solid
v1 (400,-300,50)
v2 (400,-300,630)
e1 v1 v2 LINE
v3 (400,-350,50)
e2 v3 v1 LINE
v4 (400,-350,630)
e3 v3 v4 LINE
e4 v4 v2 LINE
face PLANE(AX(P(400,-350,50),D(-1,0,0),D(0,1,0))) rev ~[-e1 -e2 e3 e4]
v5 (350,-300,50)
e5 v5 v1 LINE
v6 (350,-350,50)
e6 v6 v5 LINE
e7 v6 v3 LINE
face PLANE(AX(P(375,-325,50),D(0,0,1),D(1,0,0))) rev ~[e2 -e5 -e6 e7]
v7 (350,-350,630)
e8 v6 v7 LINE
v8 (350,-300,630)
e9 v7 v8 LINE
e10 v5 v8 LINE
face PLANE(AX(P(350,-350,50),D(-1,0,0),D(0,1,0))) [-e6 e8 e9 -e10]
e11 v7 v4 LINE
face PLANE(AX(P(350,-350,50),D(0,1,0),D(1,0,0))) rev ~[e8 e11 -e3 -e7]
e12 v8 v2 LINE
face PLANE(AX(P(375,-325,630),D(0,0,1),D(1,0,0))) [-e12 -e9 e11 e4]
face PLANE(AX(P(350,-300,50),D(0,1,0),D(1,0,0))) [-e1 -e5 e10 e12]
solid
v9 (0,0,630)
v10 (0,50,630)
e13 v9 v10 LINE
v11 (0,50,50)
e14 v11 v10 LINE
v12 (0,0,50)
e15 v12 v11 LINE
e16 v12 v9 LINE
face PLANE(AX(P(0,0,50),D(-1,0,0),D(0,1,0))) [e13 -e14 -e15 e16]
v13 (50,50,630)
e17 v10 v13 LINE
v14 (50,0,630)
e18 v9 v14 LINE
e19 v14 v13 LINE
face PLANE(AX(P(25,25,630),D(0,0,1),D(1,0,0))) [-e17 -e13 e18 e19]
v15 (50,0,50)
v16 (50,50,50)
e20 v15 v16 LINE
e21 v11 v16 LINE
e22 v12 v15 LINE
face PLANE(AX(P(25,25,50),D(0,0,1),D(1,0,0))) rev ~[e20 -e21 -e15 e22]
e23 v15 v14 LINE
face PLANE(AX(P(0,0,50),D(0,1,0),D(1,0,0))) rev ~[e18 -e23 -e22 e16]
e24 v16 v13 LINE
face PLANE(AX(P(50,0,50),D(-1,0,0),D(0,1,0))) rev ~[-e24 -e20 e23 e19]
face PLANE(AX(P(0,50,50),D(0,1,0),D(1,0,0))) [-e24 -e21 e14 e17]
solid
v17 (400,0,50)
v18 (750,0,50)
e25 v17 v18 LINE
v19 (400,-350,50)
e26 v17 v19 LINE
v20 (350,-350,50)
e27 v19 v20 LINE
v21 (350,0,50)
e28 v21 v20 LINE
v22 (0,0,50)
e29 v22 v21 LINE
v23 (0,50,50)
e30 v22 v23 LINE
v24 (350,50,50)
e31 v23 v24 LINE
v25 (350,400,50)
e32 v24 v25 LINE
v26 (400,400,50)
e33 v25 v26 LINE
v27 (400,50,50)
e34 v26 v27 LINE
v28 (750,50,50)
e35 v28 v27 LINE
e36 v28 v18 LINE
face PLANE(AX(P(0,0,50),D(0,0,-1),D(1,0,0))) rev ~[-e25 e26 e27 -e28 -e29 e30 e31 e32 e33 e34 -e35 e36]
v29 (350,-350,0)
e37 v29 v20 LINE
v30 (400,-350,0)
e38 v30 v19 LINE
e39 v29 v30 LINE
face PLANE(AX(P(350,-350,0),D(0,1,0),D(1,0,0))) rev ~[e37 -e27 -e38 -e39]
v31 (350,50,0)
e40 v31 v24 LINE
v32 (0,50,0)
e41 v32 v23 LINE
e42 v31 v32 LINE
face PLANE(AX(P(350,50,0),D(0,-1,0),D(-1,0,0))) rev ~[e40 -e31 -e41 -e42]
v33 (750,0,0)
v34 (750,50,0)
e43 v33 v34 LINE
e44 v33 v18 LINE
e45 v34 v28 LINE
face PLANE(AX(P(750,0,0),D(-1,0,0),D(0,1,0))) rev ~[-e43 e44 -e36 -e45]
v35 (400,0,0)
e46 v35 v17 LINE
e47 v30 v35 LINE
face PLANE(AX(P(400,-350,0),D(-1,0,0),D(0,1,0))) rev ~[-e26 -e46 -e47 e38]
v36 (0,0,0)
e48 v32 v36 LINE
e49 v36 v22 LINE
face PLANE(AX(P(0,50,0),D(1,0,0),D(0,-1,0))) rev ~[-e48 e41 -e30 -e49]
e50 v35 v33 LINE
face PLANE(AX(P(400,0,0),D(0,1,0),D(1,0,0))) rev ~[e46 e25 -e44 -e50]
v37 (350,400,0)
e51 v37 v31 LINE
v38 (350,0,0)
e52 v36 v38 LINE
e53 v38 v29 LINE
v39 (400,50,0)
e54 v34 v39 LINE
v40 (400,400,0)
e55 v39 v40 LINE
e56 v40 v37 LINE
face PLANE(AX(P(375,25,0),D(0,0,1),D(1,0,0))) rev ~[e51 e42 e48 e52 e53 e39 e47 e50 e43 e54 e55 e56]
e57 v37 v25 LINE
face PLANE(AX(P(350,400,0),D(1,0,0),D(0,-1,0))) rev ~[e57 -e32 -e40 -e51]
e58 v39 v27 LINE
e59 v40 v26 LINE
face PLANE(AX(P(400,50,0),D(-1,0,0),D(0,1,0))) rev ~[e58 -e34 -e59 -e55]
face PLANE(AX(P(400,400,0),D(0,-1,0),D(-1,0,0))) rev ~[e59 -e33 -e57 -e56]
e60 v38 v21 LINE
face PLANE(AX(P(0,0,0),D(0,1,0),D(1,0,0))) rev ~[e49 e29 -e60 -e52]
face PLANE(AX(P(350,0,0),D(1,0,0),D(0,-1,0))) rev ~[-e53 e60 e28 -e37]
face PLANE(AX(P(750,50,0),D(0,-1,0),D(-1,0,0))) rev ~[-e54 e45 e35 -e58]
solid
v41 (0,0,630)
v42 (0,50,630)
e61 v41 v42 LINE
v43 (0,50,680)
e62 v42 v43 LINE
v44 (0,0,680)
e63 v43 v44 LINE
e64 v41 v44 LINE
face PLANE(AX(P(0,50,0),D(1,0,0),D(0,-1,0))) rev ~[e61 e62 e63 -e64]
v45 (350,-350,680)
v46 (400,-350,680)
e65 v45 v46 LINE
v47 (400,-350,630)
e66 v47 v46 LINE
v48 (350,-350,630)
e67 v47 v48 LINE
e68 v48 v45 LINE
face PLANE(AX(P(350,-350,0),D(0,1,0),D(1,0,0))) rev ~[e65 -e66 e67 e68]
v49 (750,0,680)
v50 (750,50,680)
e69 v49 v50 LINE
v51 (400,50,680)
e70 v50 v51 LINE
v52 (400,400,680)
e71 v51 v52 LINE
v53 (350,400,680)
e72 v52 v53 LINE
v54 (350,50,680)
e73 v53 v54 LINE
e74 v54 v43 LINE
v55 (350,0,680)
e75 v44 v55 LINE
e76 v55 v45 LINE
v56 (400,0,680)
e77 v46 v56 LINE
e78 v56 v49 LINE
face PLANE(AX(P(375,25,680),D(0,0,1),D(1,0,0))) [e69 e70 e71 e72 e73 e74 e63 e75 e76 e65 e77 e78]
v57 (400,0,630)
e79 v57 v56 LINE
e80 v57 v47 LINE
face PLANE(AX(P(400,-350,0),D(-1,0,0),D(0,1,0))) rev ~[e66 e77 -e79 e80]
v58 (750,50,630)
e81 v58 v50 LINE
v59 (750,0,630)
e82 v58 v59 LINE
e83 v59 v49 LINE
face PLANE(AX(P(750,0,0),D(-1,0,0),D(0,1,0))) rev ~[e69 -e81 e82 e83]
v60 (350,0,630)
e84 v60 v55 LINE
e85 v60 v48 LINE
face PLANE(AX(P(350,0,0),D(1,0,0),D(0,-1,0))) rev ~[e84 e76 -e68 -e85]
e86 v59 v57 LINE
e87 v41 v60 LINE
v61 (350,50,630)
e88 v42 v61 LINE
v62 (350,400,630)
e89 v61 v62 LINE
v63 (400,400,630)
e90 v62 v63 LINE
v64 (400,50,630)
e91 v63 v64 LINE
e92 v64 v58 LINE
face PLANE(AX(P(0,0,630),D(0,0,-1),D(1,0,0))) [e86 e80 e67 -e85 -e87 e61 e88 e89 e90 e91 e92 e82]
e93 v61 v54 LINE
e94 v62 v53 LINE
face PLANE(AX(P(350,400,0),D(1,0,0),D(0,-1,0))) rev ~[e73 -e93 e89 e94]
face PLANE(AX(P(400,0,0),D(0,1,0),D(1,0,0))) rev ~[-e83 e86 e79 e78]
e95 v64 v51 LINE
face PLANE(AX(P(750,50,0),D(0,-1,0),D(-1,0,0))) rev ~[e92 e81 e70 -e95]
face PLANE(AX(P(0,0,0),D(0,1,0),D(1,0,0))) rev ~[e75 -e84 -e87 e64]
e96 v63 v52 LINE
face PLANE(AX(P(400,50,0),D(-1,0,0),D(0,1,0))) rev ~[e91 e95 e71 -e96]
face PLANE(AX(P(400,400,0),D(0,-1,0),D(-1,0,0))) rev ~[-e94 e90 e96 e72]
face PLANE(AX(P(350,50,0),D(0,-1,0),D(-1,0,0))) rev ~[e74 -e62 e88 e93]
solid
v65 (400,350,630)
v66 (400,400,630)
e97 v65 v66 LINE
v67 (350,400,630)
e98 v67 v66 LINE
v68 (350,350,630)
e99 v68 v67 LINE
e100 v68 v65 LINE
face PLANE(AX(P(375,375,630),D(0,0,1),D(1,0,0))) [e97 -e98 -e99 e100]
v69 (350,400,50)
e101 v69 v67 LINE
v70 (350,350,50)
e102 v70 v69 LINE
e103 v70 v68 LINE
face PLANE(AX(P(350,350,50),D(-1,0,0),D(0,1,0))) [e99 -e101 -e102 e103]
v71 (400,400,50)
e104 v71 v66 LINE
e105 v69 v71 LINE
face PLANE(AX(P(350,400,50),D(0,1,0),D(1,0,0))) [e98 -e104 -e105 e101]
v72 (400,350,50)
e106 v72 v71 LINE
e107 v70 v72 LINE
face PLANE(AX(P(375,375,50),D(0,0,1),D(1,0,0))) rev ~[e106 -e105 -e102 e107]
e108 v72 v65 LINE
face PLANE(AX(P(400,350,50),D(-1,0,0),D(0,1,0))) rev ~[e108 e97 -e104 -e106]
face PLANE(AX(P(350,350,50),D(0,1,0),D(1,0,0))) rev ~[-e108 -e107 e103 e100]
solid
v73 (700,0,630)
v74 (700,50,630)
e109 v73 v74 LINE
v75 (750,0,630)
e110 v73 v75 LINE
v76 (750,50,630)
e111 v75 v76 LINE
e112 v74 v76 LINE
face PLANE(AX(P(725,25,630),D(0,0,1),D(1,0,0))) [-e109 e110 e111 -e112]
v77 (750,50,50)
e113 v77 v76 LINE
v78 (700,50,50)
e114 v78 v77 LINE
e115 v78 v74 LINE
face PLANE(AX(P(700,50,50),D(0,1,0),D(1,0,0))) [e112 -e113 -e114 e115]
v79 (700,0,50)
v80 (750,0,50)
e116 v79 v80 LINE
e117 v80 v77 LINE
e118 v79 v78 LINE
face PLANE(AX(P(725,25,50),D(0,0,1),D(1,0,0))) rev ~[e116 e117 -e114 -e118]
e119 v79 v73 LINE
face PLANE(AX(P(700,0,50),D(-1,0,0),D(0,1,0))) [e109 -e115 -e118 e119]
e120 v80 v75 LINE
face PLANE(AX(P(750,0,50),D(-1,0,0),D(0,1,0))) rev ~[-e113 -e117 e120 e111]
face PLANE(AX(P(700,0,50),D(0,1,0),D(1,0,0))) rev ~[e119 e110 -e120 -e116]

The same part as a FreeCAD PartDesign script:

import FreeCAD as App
import Part
import Sketcher
from FreeCAD import Vector


def add_polygon(sketch, points):
    """Adds a closed chain of lines whose ends are joined by coincident constraints."""
    first, n = sketch.GeometryCount, len(points)
    for a, b in zip(points, points[1:] + points[:1]):
        sketch.addGeometry(Part.LineSegment(App.Vector(*a, 0), App.Vector(*b, 0)), False)
    for i in range(n):
        sketch.addConstraint(Sketcher.Constraint("Coincident", first + i, 2, first + (i + 1) % n, 1))

doc = App.newDocument("Part")
params = doc.addObject("Spreadsheet::Sheet", "Params")
for row, (alias, value) in enumerate([
    ("sketch1_width", "350 mm"),
    ("sketch1_width2", "50 mm"),
    ("pad1_length", "680 mm"),
    ("sketch2_height", "580 mm"),
    ("sketch3_width", "50 mm"),
    ("sketch3_height", "580 mm"),
    ("sketch4_width", "50 mm"),
    ("sketch4_height", "580 mm"),
    ("sketch5_width", "50 mm"),
    ("pad2_length", "580 mm"),
    ("sketch6_width", "50 mm"),
    ("pad3_length", "580 mm"),
    ("sketch7_width", "50 mm"),
    ("pad4_length", "580 mm"),
    ("sketch8_width", "50 mm"),
    ("pad5_length", "580 mm"),
], start=1):
    params.set(f"A{row}", alias)
    params.set(f"B{row}", "=" + value)
    params.setAlias(f"B{row}", alias)

body = doc.addObject("PartDesign::Body", "Body")
body.AllowCompound = True

sketch1 = body.newObject("Sketcher::SketchObject", "Sketch")
sketch1.AttachmentSupport = (doc.getObject("XY_Plane"), [""])
sketch1.MapMode = "FlatFace"
add_polygon(sketch1, [(0, 50), (0, 0), (350, 0), (350, -350), (400, -350), (400, 0), (750, 0), (750, 50), (400, 50), (400, 400), (350, 400), (350, 50)])
sketch1.addConstraint([
    Sketcher.Constraint("Vertical", 0),
    Sketcher.Constraint("Horizontal", 1),
    Sketcher.Constraint("Vertical", 2),
    Sketcher.Constraint("Horizontal", 3),
    Sketcher.Constraint("Vertical", 4),
    Sketcher.Constraint("Horizontal", 5),
    Sketcher.Constraint("Vertical", 6),
    Sketcher.Constraint("Horizontal", 7),
    Sketcher.Constraint("Vertical", 8),
    Sketcher.Constraint("Horizontal", 9),
    Sketcher.Constraint("Vertical", 10),
    Sketcher.Constraint("Horizontal", 11),
    Sketcher.Constraint("Coincident", 0, 2, -1, 1),
    Sketcher.Constraint("PointOnObject", 4, 2, -1),
    Sketcher.Constraint("Horizontal", 7, 2, 10, 2),
    Sketcher.Constraint("Vertical", 4, 2, 7, 2),
    Sketcher.Constraint("Vertical", 2, 2, 9, 2),
    Sketcher.Constraint("Equal", 1, 5),
    Sketcher.Constraint("Equal", 9, 0),
    Sketcher.Constraint("Equal", 11, 2),
    Sketcher.Constraint("Equal", 4, 8),
    Sketcher.Constraint("DistanceX", 1, 1, 1, 2, 350.0),
    Sketcher.Constraint("DistanceX", 3, 1, 3, 2, 50.0),
])
sketch1.setExpression("Constraints[33]", "Params.sketch1_width")
sketch1.setExpression("Constraints[34]", "Params.sketch1_width2")
pad1 = body.newObject("PartDesign::Pad", "Pad")
pad1.Profile = sketch1
pad1.setExpression("Length", "Params.pad1_length")

sketch2 = body.newObject("Sketcher::SketchObject", "Sketch001")
sketch2.AttachmentSupport = (doc.getObject("XZ_Plane"), [""])
sketch2.MapMode = "FlatFace"
add_polygon(sketch2, [(0, 630), (0, 50), (582.338989, 50), (582.338989, 630)])
sketch2.addConstraint([
    Sketcher.Constraint("Vertical", 0),
    Sketcher.Constraint("Horizontal", 1),
    Sketcher.Constraint("Vertical", 2),
    Sketcher.Constraint("Horizontal", 3),
    Sketcher.Constraint("PointOnObject", 0, 2, -2),
    Sketcher.Constraint("DistanceY", 0, 2, 0, 1, 580.0),
    Sketcher.Constraint("DistanceY", -1, 1, 0, 2, 50.0),
    Sketcher.Constraint("DistanceX", 1, 1, 1, 2, 582.338989),
])
sketch2.setExpression("Constraints[9]", "Params.sketch2_height")
pocket1 = body.newObject("PartDesign::Pocket", "Pocket")
pocket1.Profile = sketch2
pocket1.Type = "ThroughAll"

sketch3 = body.newObject("Sketcher::SketchObject", "Sketch002")
sketch3.AttachmentSupport = (doc.getObject("XZ_Plane"), [""])
sketch3.MapMode = "FlatFace"
add_polygon(sketch3, [(400, 630), (400, 50), (350, 50), (350, 630)])
sketch3.addConstraint([
    Sketcher.Constraint("Vertical", 0),
    Sketcher.Constraint("Horizontal", 1),
    Sketcher.Constraint("Vertical", 2),
    Sketcher.Constraint("Horizontal", 3),
    Sketcher.Constraint("DistanceX", 1, 2, 1, 1, 50.0),
    Sketcher.Constraint("DistanceY", 0, 2, 0, 1, 580.0),
    Sketcher.Constraint("DistanceX", -1, 1, 0, 2, 400.0),
    Sketcher.Constraint("DistanceY", -1, 1, 0, 2, 50.0),
])
sketch3.setExpression("Constraints[8]", "Params.sketch3_width")
sketch3.setExpression("Constraints[9]", "Params.sketch3_height")
pocket2 = body.newObject("PartDesign::Pocket", "Pocket001")
pocket2.Profile = sketch3
pocket2.Type = "ThroughAll"
pocket2.Reversed = True

sketch4 = body.newObject("Sketcher::SketchObject", "Sketch003")
sketch4.AttachmentSupport = (doc.getObject("YZ_Plane"), [""])
sketch4.MapMode = "FlatFace"
sketch4.AttachmentOffset = App.Placement(Vector(0, 0, 582.338989), App.Rotation())
add_polygon(sketch4, [(50, 630), (50, 50), (0, 50), (0, 630)])
sketch4.addConstraint([
    Sketcher.Constraint("Vertical", 0),
    Sketcher.Constraint("Horizontal", 1),
    Sketcher.Constraint("Vertical", 2),
    Sketcher.Constraint("Horizontal", 3),
    Sketcher.Constraint("PointOnObject", 1, 2, -2),
    Sketcher.Constraint("DistanceX", 1, 2, 1, 1, 50.0),
    Sketcher.Constraint("DistanceY", 0, 2, 0, 1, 580.0),
    Sketcher.Constraint("DistanceY", -1, 1, 0, 2, 50.0),
])
sketch4.setExpression("Constraints[9]", "Params.sketch4_width")
sketch4.setExpression("Constraints[10]", "Params.sketch4_height")
pocket3 = body.newObject("PartDesign::Pocket", "Pocket002")
pocket3.Profile = sketch4
pocket3.Type = "ThroughAll"
pocket3.Reversed = True
body2 = doc.addObject("PartDesign::Body", "Body001")

sketch5 = body2.newObject("Sketcher::SketchObject", "Sketch004")
sketch5.AttachmentSupport = (doc.getObject("XY_Plane001"), [""])
sketch5.MapMode = "FlatFace"
sketch5.AttachmentOffset = App.Placement(Vector(0, 0, 50), App.Rotation())
add_polygon(sketch5, [(700, 50), (700, 0), (750, 0), (750, 50)])
sketch5.addConstraint([
    Sketcher.Constraint("Vertical", 0),
    Sketcher.Constraint("Horizontal", 1),
    Sketcher.Constraint("Vertical", 2),
    Sketcher.Constraint("Horizontal", 3),
    Sketcher.Constraint("PointOnObject", 0, 2, -1),
    Sketcher.Constraint("Equal", 3, 0),
    Sketcher.Constraint("DistanceX", 1, 1, 1, 2, 50.0),
    Sketcher.Constraint("DistanceX", -1, 1, 0, 2, 700.0),
])
sketch5.setExpression("Constraints[10]", "Params.sketch5_width")
pad2 = body2.newObject("PartDesign::Pad", "Pad001")
pad2.Profile = sketch5
pad2.setExpression("Length", "Params.pad2_length")
body3 = doc.addObject("PartDesign::Body", "Body002")

sketch6 = body3.newObject("Sketcher::SketchObject", "Sketch005")
sketch6.AttachmentSupport = (doc.getObject("XY_Plane002"), [""])
sketch6.MapMode = "FlatFace"
sketch6.AttachmentOffset = App.Placement(Vector(0, 0, 50), App.Rotation())
add_polygon(sketch6, [(350, 400), (350, 350), (400, 350), (400, 400)])
sketch6.addConstraint([
    Sketcher.Constraint("Vertical", 0),
    Sketcher.Constraint("Horizontal", 1),
    Sketcher.Constraint("Vertical", 2),
    Sketcher.Constraint("Horizontal", 3),
    Sketcher.Constraint("Equal", 3, 0),
    Sketcher.Constraint("DistanceX", 1, 1, 1, 2, 50.0),
    Sketcher.Constraint("DistanceX", -1, 1, 0, 2, 350.0),
    Sketcher.Constraint("DistanceY", -1, 1, 0, 2, 350.0),
])
sketch6.setExpression("Constraints[9]", "Params.sketch6_width")
pad3 = body3.newObject("PartDesign::Pad", "Pad002")
pad3.Profile = sketch6
pad3.setExpression("Length", "Params.pad3_length")
body4 = doc.addObject("PartDesign::Body", "Body003")

sketch7 = body4.newObject("Sketcher::SketchObject", "Sketch006")
sketch7.AttachmentSupport = (doc.getObject("XY_Plane003"), [""])
sketch7.MapMode = "FlatFace"
sketch7.AttachmentOffset = App.Placement(Vector(0, 0, 50), App.Rotation())
add_polygon(sketch7, [(0, 50), (0, 0), (50, 0), (50, 50)])
sketch7.addConstraint([
    Sketcher.Constraint("Vertical", 0),
    Sketcher.Constraint("Horizontal", 1),
    Sketcher.Constraint("Vertical", 2),
    Sketcher.Constraint("Horizontal", 3),
    Sketcher.Constraint("Coincident", 0, 2, -1, 1),
    Sketcher.Constraint("Equal", 3, 0),
    Sketcher.Constraint("DistanceX", 1, 1, 1, 2, 50.0),
])
sketch7.setExpression("Constraints[10]", "Params.sketch7_width")
pad4 = body4.newObject("PartDesign::Pad", "Pad003")
pad4.Profile = sketch7
pad4.setExpression("Length", "Params.pad4_length")
body5 = doc.addObject("PartDesign::Body", "Body004")

sketch8 = body5.newObject("Sketcher::SketchObject", "Sketch007")
sketch8.AttachmentSupport = (doc.getObject("XY_Plane004"), [""])
sketch8.MapMode = "FlatFace"
sketch8.AttachmentOffset = App.Placement(Vector(0, 0, 50), App.Rotation())
add_polygon(sketch8, [(350, -300), (350, -350), (400, -350), (400, -300)])
sketch8.addConstraint([
    Sketcher.Constraint("Vertical", 0),
    Sketcher.Constraint("Horizontal", 1),
    Sketcher.Constraint("Vertical", 2),
    Sketcher.Constraint("Horizontal", 3),
    Sketcher.Constraint("Equal", 3, 0),
    Sketcher.Constraint("DistanceX", 1, 1, 1, 2, 50.0),
    Sketcher.Constraint("DistanceX", -1, 1, 0, 2, 350.0),
    Sketcher.Constraint("DistanceY", 0, 2, -1, 1, 350.0),
])
sketch8.setExpression("Constraints[9]", "Params.sketch8_width")
pad5 = body5.newObject("PartDesign::Pad", "Pad004")
pad5.Profile = sketch8
pad5.setExpression("Length", "Params.pad5_length")

doc.recompute()
